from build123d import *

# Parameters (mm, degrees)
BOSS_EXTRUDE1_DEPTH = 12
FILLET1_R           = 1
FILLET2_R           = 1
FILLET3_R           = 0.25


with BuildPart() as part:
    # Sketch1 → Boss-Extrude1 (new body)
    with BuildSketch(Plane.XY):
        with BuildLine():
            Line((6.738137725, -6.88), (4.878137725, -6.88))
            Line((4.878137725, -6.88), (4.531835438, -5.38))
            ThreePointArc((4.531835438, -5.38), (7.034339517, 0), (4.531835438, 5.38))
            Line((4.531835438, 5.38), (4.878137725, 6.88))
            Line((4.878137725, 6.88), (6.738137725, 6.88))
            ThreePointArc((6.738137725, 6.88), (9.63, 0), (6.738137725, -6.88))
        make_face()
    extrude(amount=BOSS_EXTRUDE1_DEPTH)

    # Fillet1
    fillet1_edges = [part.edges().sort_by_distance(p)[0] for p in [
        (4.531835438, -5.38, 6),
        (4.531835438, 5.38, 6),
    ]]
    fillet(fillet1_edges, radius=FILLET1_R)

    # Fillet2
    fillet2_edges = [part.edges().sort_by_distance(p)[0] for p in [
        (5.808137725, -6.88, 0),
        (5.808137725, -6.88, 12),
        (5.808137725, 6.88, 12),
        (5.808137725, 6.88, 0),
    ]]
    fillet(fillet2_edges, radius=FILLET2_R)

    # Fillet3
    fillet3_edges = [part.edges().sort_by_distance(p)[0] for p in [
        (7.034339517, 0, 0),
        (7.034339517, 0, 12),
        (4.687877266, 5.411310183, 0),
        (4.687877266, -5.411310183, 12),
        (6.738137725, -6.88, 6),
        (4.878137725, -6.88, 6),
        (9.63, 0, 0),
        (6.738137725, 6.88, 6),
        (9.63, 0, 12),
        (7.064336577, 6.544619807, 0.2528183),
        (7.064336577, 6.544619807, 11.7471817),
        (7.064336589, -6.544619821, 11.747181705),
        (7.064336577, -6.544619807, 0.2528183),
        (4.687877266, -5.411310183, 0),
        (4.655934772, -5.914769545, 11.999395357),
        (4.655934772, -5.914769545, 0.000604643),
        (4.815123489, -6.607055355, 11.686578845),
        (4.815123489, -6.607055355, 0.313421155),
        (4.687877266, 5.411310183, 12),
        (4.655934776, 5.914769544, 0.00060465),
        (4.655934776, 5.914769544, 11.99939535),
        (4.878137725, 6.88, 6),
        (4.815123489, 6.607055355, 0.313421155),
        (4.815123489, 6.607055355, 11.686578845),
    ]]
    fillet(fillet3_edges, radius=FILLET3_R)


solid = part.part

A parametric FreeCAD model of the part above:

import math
import FreeCAD as App
import Part
import Sketcher

V = App.Vector
Q = App.Units.Quantity


def edges_at(feature, points):
    """Names of the edges that pass closest to the given points."""
    edges = feature.Shape.Edges
    near = lambda p: min(range(len(edges)), key=lambda i: edges[i].distToShape(Part.Vertex(*p))[0])
    return sorted({f"Edge{near(p) + 1}" for p in points})

doc = App.newDocument("Part")
body = doc.addObject("PartDesign::Body", "Body")

sketch1 = doc.addObject("Sketcher::SketchObject", "Sketch")
body.addObject(sketch1)
sketch1.AttachmentSupport = (doc.XY_Plane, [""])
sketch1.MapMode = "FlatFace"
sketch1.addGeometry([
    Part.LineSegment(V(4.878138, -6.88, 0), V(6.738138, -6.88, 0)),
    Part.ArcOfCircle(Part.Circle(V(0, 0, 0), V(0, 0, 1), 9.63), math.radians(-45.596838), math.radians(45.596838)),
    Part.LineSegment(V(6.738138, 6.88, 0), V(4.878138, 6.88, 0)),
    Part.LineSegment(V(4.878138, 6.88, 0), V(4.531835, 5.38, 0)),
    Part.ArcOfCircle(Part.Circle(V(0, 0, 0), V(0, 0, 1), 7.03434), math.radians(-49.890936), math.radians(49.890936)),
    Part.LineSegment(V(4.531835, -5.38, 0), V(4.878138, -6.88, 0)),
], False)
sketch1.addConstraint([
    Sketcher.Constraint("Coincident", 0, 2, 1, 1),
    Sketcher.Constraint("Coincident", 1, 2, 2, 1),
    Sketcher.Constraint("Coincident", 2, 2, 3, 1),
    Sketcher.Constraint("Coincident", 3, 2, 4, 2),
    Sketcher.Constraint("Coincident", 4, 1, 5, 1),
    Sketcher.Constraint("Coincident", 5, 2, 0, 1),
    Sketcher.Constraint("Horizontal", 0),
    Sketcher.Constraint("Horizontal", 2),
    Sketcher.Constraint("Coincident", 1, 3, -1, 1),
    Sketcher.Constraint("Coincident", 4, 3, -1, 1),
    Sketcher.Constraint("Symmetric", 2, 2, 5, 2, -1),
    Sketcher.Constraint("Vertical", 3, 2, 4, 1),
    Sketcher.Constraint("Angle", 3, Q("-103 deg")),
    Sketcher.Constraint("Radius", 1, 9.63),
    Sketcher.Constraint("DistanceX", 0, 1, 0, 2, 1.86),
    Sketcher.Constraint("DistanceY", 3, 2, 2, 2, 1.5),
    Sketcher.Constraint("DistanceY", 0, 2, -1, 1, 6.88),
])
pad1 = doc.addObject("PartDesign::Pad", "Pad")
body.addObject(pad1)
pad1.Profile = sketch1
pad1.Length = 12
doc.recompute()

fillet = doc.addObject("PartDesign::Fillet", "Fillet")
body.addObject(fillet)
fillet.Base = (pad1, edges_at(pad1, [(4.532, -5.38, 6), (4.532, 5.38, 6)]))
fillet.Radius = 1
doc.recompute()

fillet2 = doc.addObject("PartDesign::Fillet", "Fillet001")
body.addObject(fillet2)
fillet2.Base = (fillet, edges_at(fillet, [
    (5.808, -6.88, 0),
    (5.808, -6.88, 12),
    (5.808, 6.88, 12),
    (5.808, 6.88, 0),
]))
fillet2.Radius = 1
doc.recompute()

fillet3 = doc.addObject("PartDesign::Fillet", "Fillet002")
body.addObject(fillet3)
fillet3.Base = (fillet2, edges_at(fillet2, [
    (7.034, 0, 0),
    (7.034, 0, 12),
    (4.688, 5.411, 0),
    (4.688, -5.411, 12),
    (6.738, -6.88, 6),
    (4.878, -6.88, 6),
    (9.63, 0, 0),
    (6.738, 6.88, 6),
    (9.63, 0, 12),
    (7.064, 6.545, 0.253),
    (7.064, 6.545, 11.747),
    (7.064, -6.545, 11.747),
    (7.064, -6.545, 0.253),
    (4.688, -5.411, 0),
    (4.656, -5.915, 11.999),
    (4.656, -5.915, 0.001),
    (4.815, -6.607, 11.687),
    (4.815, -6.607, 0.313),
    (4.688, 5.411, 12),
    (4.656, 5.915, 0.001),
    (4.656, 5.915, 11.999),
    (4.878, 6.88, 6),
    (4.815, 6.607, 0.313),
    (4.815, 6.607, 11.687),
]))
fillet3.Radius = 0.25

doc.recompute()
